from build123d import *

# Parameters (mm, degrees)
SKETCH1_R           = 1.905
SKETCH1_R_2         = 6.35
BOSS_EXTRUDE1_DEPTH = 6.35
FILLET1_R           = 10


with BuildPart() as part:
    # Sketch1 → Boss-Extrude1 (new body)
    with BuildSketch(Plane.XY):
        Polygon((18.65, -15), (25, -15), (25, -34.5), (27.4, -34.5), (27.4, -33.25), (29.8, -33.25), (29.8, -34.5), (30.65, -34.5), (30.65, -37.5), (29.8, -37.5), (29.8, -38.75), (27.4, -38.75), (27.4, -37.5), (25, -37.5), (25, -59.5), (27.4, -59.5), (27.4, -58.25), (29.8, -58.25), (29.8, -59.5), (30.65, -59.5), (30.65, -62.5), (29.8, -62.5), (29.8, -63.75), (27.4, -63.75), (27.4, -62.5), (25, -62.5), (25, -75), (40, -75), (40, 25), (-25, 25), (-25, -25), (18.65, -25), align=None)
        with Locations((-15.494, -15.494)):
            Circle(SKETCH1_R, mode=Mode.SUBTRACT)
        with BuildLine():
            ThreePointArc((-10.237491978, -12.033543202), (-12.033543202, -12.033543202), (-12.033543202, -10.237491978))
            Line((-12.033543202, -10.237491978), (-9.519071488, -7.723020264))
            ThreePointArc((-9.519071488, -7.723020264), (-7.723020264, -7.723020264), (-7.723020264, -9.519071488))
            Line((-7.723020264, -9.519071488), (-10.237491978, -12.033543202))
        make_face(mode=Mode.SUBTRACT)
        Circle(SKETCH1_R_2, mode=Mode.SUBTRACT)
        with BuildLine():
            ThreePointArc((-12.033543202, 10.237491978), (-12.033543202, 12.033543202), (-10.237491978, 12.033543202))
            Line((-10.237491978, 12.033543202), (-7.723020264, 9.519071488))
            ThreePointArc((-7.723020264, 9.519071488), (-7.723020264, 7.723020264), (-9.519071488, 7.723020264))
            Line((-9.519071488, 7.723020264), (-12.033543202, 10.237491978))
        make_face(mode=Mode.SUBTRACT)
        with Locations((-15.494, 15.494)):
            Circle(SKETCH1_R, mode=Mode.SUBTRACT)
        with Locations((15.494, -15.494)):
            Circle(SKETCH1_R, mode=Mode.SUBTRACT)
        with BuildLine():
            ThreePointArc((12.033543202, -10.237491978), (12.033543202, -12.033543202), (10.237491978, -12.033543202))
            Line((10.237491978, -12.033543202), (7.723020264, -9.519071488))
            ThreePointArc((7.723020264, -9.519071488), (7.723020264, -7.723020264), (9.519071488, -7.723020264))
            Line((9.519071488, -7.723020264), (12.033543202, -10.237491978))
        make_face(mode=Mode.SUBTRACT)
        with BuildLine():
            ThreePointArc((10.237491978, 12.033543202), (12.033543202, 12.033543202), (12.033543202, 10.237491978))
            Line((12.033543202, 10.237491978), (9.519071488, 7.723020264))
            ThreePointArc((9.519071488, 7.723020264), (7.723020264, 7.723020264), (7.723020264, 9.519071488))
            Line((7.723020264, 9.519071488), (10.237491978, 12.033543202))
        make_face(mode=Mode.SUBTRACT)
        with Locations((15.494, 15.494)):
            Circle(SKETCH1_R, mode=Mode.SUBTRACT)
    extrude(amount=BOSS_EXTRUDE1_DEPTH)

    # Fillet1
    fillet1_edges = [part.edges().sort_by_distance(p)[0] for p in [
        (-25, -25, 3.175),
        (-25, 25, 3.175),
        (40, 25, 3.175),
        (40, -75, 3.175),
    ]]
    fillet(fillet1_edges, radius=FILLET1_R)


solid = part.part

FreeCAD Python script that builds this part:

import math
import FreeCAD as App
import Part
import Sketcher

V = App.Vector
Q = App.Units.Quantity


def edges_at(feature, points):
    """Names of the edges that pass closest to the given points."""
    edges = feature.Shape.Edges
    near = lambda p: min(range(len(edges)), key=lambda i: edges[i].distToShape(Part.Vertex(*p))[0])
    return sorted({f"Edge{near(p) + 1}" for p in points})

doc = App.newDocument("Part")
body = doc.addObject("PartDesign::Body", "Body")

# Sketch on XY plane
sketch1 = body.newObject("Sketcher::SketchObject", "Sketch")
sketch1.AttachmentSupport = (doc.getObject("XY_Plane"), [""])
sketch1.MapMode = "FlatFace"
sketch1.addGeometry([
    Part.LineSegment(V(18.65, -15, 0), V(25, -15, 0)),  # 0
    Part.LineSegment(V(25, -15, 0), V(25, -34.5, 0)),  # 1
    Part.LineSegment(V(25, -34.5, 0), V(27.4, -34.5, 0)),  # 2
    Part.LineSegment(V(27.4, -34.5, 0), V(27.4, -33.25, 0)),  # 3
    Part.LineSegment(V(27.4, -33.25, 0), V(29.8, -33.25, 0)),  # 4
    Part.LineSegment(V(29.8, -33.25, 0), V(29.8, -34.5, 0)),  # 5
    Part.LineSegment(V(29.8, -34.5, 0), V(30.65, -34.5, 0)),  # 6
    Part.LineSegment(V(30.65, -34.5, 0), V(30.65, -37.5, 0)),  # 7
    Part.LineSegment(V(30.65, -37.5, 0), V(29.8, -37.5, 0)),  # 8
    Part.LineSegment(V(29.8, -37.5, 0), V(29.8, -38.75, 0)),  # 9
    Part.LineSegment(V(29.8, -38.75, 0), V(27.4, -38.75, 0)),  # 10
    Part.LineSegment(V(27.4, -38.75, 0), V(27.4, -37.5, 0)),  # 11
    Part.LineSegment(V(27.4, -37.5, 0), V(25, -37.5, 0)),  # 12
    Part.LineSegment(V(25, -37.5, 0), V(25, -59.5, 0)),  # 13
    Part.LineSegment(V(25, -59.5, 0), V(27.4, -59.5, 0)),  # 14
    Part.LineSegment(V(27.4, -59.5, 0), V(27.4, -58.25, 0)),  # 15
    Part.LineSegment(V(27.4, -58.25, 0), V(29.8, -58.25, 0)),  # 16
    Part.LineSegment(V(29.8, -58.25, 0), V(29.8, -59.5, 0)),  # 17
    Part.LineSegment(V(29.8, -59.5, 0), V(30.65, -59.5, 0)),  # 18
    Part.LineSegment(V(30.65, -59.5, 0), V(30.65, -62.5, 0)),  # 19
    Part.LineSegment(V(30.65, -62.5, 0), V(29.8, -62.5, 0)),  # 20
    Part.LineSegment(V(29.8, -62.5, 0), V(29.8, -63.75, 0)),  # 21
    Part.LineSegment(V(29.8, -63.75, 0), V(27.4, -63.75, 0)),  # 22
    Part.LineSegment(V(27.4, -63.75, 0), V(27.4, -62.5, 0)),  # 23
    Part.LineSegment(V(27.4, -62.5, 0), V(25, -62.5, 0)),  # 24
    Part.LineSegment(V(25, -62.5, 0), V(25, -75, 0)),  # 25
    Part.LineSegment(V(25, -75, 0), V(40, -75, 0)),  # 26
    Part.LineSegment(V(40, -75, 0), V(40, 25, 0)),  # 27
    Part.LineSegment(V(40, 25, 0), V(-25, 25, 0)),  # 28
    Part.LineSegment(V(-25, 25, 0), V(-25, -25, 0)),  # 29
    Part.LineSegment(V(-25, -25, 0), V(18.65, -25, 0)),  # 30
    Part.LineSegment(V(18.65, -25, 0), V(18.65, -15, 0)),  # 31
    Part.Circle(V(-15.494, -15.494, 0), V(0, 0, 1), 1.905),  # 32
    Part.LineSegment(V(-7.72302, -9.519071, 0), V(-10.237492, -12.033543, 0)),  # 33
    Part.ArcOfCircle(Part.Circle(V(-11.135518, -11.135518, 0), V(0, 0, 1), 1.27), math.radians(135), math.radians(315)),  # 34
    Part.LineSegment(V(-12.033543, -10.237492, 0), V(-9.519071, -7.72302, 0)),  # 35
    Part.ArcOfCircle(Part.Circle(V(-8.621046, -8.621046, 0), V(0, 0, 1), 1.27), math.radians(-45), math.radians(135)),  # 36
    Part.Circle(V(15.494, -15.494, 0), V(0, 0, 1), 1.905),  # 37
    Part.LineSegment(V(9.519071, -7.72302, 0), V(12.033543, -10.237492, 0)),  # 38
    Part.ArcOfCircle(Part.Circle(V(11.135518, -11.135518, 0), V(0, 0, 1), 1.27), math.radians(-135), math.radians(45)),  # 39
    Part.LineSegment(V(10.237492, -12.033543, 0), V(7.72302, -9.519071, 0)),  # 40
    Part.ArcOfCircle(Part.Circle(V(8.621046, -8.621046, 0), V(0, 0, 1), 1.27), math.radians(45), math.radians(225)),  # 41
    Part.LineSegment(V(-9.519071, 7.72302, 0), V(-12.033543, 10.237492, 0)),  # 42
    Part.ArcOfCircle(Part.Circle(V(-11.135518, 11.135518, 0), V(0, 0, 1), 1.27), math.radians(45), math.radians(225)),  # 43
    Part.LineSegment(V(-10.237492, 12.033543, 0), V(-7.72302, 9.519071, 0)),  # 44
    Part.ArcOfCircle(Part.Circle(V(-8.621046, 8.621046, 0), V(0, 0, 1), 1.27), math.radians(-135), math.radians(45)),  # 45
    Part.Circle(V(-15.494, 15.494, 0), V(0, 0, 1), 1.905),  # 46
    Part.Circle(V(0, 0, 0), V(0, 0, 1), 6.35),  # 47
    Part.LineSegment(V(7.72302, 9.519071, 0), V(10.237492, 12.033543, 0)),  # 48
    Part.ArcOfCircle(Part.Circle(V(11.135518, 11.135518, 0), V(0, 0, 1), 1.27), math.radians(-45), math.radians(135)),  # 49
    Part.LineSegment(V(12.033543, 10.237492, 0), V(9.519071, 7.72302, 0)),  # 50
    Part.ArcOfCircle(Part.Circle(V(8.621046, 8.621046, 0), V(0, 0, 1), 1.27), math.radians(135), math.radians(315)),  # 51
    Part.Circle(V(15.494, 15.494, 0), V(0, 0, 1), 1.905),  # 52
], False)
sketch1.addConstraint([
    Sketcher.Constraint("Coincident", 0, 2, 1, 1),
    Sketcher.Constraint("Coincident", 1, 2, 2, 1),
    Sketcher.Constraint("Coincident", 2, 2, 3, 1),
    Sketcher.Constraint("Coincident", 3, 2, 4, 1),
    Sketcher.Constraint("Coincident", 4, 2, 5, 1),
    Sketcher.Constraint("Coincident", 5, 2, 6, 1),
    Sketcher.Constraint("Coincident", 6, 2, 7, 1),
    Sketcher.Constraint("Coincident", 7, 2, 8, 1),
    Sketcher.Constraint("Coincident", 8, 2, 9, 1),
    Sketcher.Constraint("Coincident", 9, 2, 10, 1),
    Sketcher.Constraint("Coincident", 10, 2, 11, 1),
    Sketcher.Constraint("Coincident", 11, 2, 12, 1),
    Sketcher.Constraint("Coincident", 12, 2, 13, 1),
    Sketcher.Constraint("Coincident", 13, 2, 14, 1),
    Sketcher.Constraint("Coincident", 14, 2, 15, 1),
    Sketcher.Constraint("Coincident", 15, 2, 16, 1),
    Sketcher.Constraint("Coincident", 16, 2, 17, 1),
    Sketcher.Constraint("Coincident", 17, 2, 18, 1),
    Sketcher.Constraint("Coincident", 18, 2, 19, 1),
    Sketcher.Constraint("Coincident", 19, 2, 20, 1),
    Sketcher.Constraint("Coincident", 20, 2, 21, 1),
    Sketcher.Constraint("Coincident", 21, 2, 22, 1),
    Sketcher.Constraint("Coincident", 22, 2, 23, 1),
    Sketcher.Constraint("Coincident", 23, 2, 24, 1),
    Sketcher.Constraint("Coincident", 24, 2, 25, 1),
    Sketcher.Constraint("Coincident", 25, 2, 26, 1),
    Sketcher.Constraint("Coincident", 26, 2, 27, 1),
    Sketcher.Constraint("Coincident", 27, 2, 28, 1),
    Sketcher.Constraint("Coincident", 28, 2, 29, 1),
    Sketcher.Constraint("Coincident", 29, 2, 30, 1),
    Sketcher.Constraint("Coincident", 30, 2, 31, 1),
    Sketcher.Constraint("Coincident", 31, 2, 0, 1),
    Sketcher.Constraint("Tangent", 33, 2, 34, 2),
    Sketcher.Constraint("Tangent", 34, 1, 35, 1),
    Sketcher.Constraint("Tangent", 35, 2, 36, 2),
    Sketcher.Constraint("Tangent", 36, 1, 33, 1),
    Sketcher.Constraint("Tangent", 38, 2, 39, 2),
    Sketcher.Constraint("Tangent", 39, 1, 40, 1),
    Sketcher.Constraint("Tangent", 40, 2, 41, 2),
    Sketcher.Constraint("Tangent", 41, 1, 38, 1),
    Sketcher.Constraint("Tangent", 42, 2, 43, 2),
    Sketcher.Constraint("Tangent", 43, 1, 44, 1),
    Sketcher.Constraint("Tangent", 44, 2, 45, 2),
    Sketcher.Constraint("Tangent", 45, 1, 42, 1),
    Sketcher.Constraint("Tangent", 48, 2, 49, 2),
    Sketcher.Constraint("Tangent", 49, 1, 50, 1),
    Sketcher.Constraint("Tangent", 50, 2, 51, 2),
    Sketcher.Constraint("Tangent", 51, 1, 48, 1),
    Sketcher.Constraint("Horizontal", 0),
    Sketcher.Constraint("Vertical", 1),
    Sketcher.Constraint("Horizontal", 2),
    Sketcher.Constraint("Vertical", 3),
    Sketcher.Constraint("Horizontal", 4),
    Sketcher.Constraint("Vertical", 5),
    Sketcher.Constraint("Horizontal", 6),
    Sketcher.Constraint("Vertical", 7),
    Sketcher.Constraint("Horizontal", 8),
    Sketcher.Constraint("Vertical", 9),
    Sketcher.Constraint("Horizontal", 10),
    Sketcher.Constraint("Vertical", 11),
    Sketcher.Constraint("Horizontal", 12),
    Sketcher.Constraint("Vertical", 13),
    Sketcher.Constraint("Horizontal", 14),
    Sketcher.Constraint("Vertical", 15),
    Sketcher.Constraint("Horizontal", 16),
    Sketcher.Constraint("Vertical", 17),
    Sketcher.Constraint("Horizontal", 18),
    Sketcher.Constraint("Vertical", 19),
    Sketcher.Constraint("Horizontal", 20),
    Sketcher.Constraint("Vertical", 21),
    Sketcher.Constraint("Horizontal", 22),
    Sketcher.Constraint("Vertical", 23),
    Sketcher.Constraint("Horizontal", 24),
    Sketcher.Constraint("Vertical", 25),
    Sketcher.Constraint("Horizontal", 26),
    Sketcher.Constraint("Vertical", 27),
    Sketcher.Constraint("Horizontal", 28),
    Sketcher.Constraint("Vertical", 29),
    Sketcher.Constraint("Horizontal", 30),
    Sketcher.Constraint("Vertical", 31),
    Sketcher.Constraint("Coincident", 47, 3, -1, 1),
    Sketcher.Constraint("Equal", 34, 36),
    Sketcher.Constraint("Equal", 32, 37),
    Sketcher.Constraint("Equal", 36, 39),
    Sketcher.Constraint("Equal", 39, 41),
    Sketcher.Constraint("Equal", 41, 43),
    Sketcher.Constraint("Equal", 43, 45),
    Sketcher.Constraint("Equal", 37, 46),
    Sketcher.Constraint("Equal", 45, 49),
    Sketcher.Constraint("Equal", 49, 51),
    Sketcher.Constraint("Equal", 46, 52),
    Sketcher.Constraint("Symmetric", 39, 3, 43, 3, -1, 1),
    Sketcher.Constraint("Symmetric", 41, 3, 45, 3, -1, 1),
    Sketcher.Constraint("Symmetric", 37, 3, 46, 3, -1, 1),
    Sketcher.Constraint("Symmetric", 34, 3, 49, 3, -1, 1),
    Sketcher.Constraint("Symmetric", 36, 3, 51, 3, -1, 1),
    Sketcher.Constraint("Symmetric", 32, 3, 52, 3, -1, 1),
    Sketcher.Constraint("Symmetric", 32, 3, 37, 3, -2),
    Sketcher.Constraint("Symmetric", 34, 3, 39, 3, -2),
    Sketcher.Constraint("Symmetric", 36, 3, 41, 3, -2),
    Sketcher.Constraint("Perpendicular", 35, 38),
    Sketcher.Constraint("Horizontal", 2, 2, 5, 2),
    Sketcher.Constraint("Horizontal", 8, 2, 11, 2),
    Sketcher.Constraint("Horizontal", 14, 2, 17, 2),
    Sketcher.Constraint("Horizontal", 20, 2, 23, 2),
    Sketcher.Constraint("Vertical", 5, 2, 8, 2),
    Sketcher.Constraint("Vertical", 3, 2, 10, 2),
    Sketcher.Constraint("Vertical", 1, 2, 12, 2),
    Sketcher.Constraint("Vertical", 11, 2, 14, 2),
    Sketcher.Constraint("Vertical", 9, 2, 16, 2),
    Sketcher.Constraint("Vertical", 7, 2, 18, 2),
    Sketcher.Constraint("Vertical", 17, 2, 20, 2),
    Sketcher.Constraint("Vertical", 15, 2, 22, 2),
    Sketcher.Constraint("Vertical", 13, 2, 24, 2),
    Sketcher.Constraint("Equal", 2, 4),
    Sketcher.Constraint("Equal", 5, 9),
    Sketcher.Constraint("Equal", 11, 15),
    Sketcher.Constraint("Equal", 7, 19),
    Sketcher.Constraint("Equal", 17, 21),
    Sketcher.Constraint("Diameter", 47, Q("12.7 mm")),
    Sketcher.Constraint("Diameter", 32, Q("3.81 mm")),
    Sketcher.Constraint("DistanceX", 26, 1, 26, 2, Q("15 mm")),
    Sketcher.Constraint("DistanceX", 28, 2, 28, 1, Q("65 mm")),
    Sketcher.Constraint("DistanceY", 7, 2, 7, 1, Q("3 mm")),
    Sketcher.Constraint("DistanceY", 13, 2, 13, 1, Q("22 mm")),
    Sketcher.Constraint("DistanceY", 27, 1, 27, 2, Q("100 mm")),
    Sketcher.Constraint("DistanceY", 29, 2, 29, 1, Q("50 mm")),
    Sketcher.Constraint("DistanceY", 31, 1, 31, 2, Q("10 mm")),
    Sketcher.Constraint("Radius", 34, Q("1.27 mm")),
    Sketcher.Constraint("DistanceX", 2, 1, 2, 2, Q("2.4 mm")),
    Sketcher.Constraint("DistanceY", 1, 2, 1, 1, Q("19.5 mm")),
    Sketcher.Constraint("DistanceX", -1, 1, 0, 2, Q("25 mm")),
    Sketcher.Constraint("DistanceY", 0, 2, -1, 1, Q("15 mm")),
    Sketcher.Constraint("DistanceX", 0, 1, 0, 2, Q("6.35 mm")),
    Sketcher.Constraint("DistanceX", 6, 1, 6, 2, Q("0.85 mm")),
    Sketcher.Constraint("DistanceY", 3, 1, 3, 2, Q("1.25 mm")),
    Sketcher.Constraint("Distance", 33, Q("3.556 mm")),
    Sketcher.Constraint("DistanceX", 32, 3, -1, 1, Q("15.494 mm")),
    Sketcher.Constraint("DistanceY", 32, 3, -1, 1, Q("15.494 mm")),
    Sketcher.Constraint("DistanceX", 33, 2, -1, 1, Q("10.237492 mm")),
    Sketcher.Constraint("DistanceY", 34, 1, -1, 1, Q("10.237492 mm")),
])
pad1 = body.newObject("PartDesign::Pad", "Pad")
pad1.Profile = sketch1
pad1.Length = 6.35
doc.recompute()

fillet = body.newObject("PartDesign::Fillet", "Fillet")
fillet.Base = (pad1, edges_at(pad1, [
    (-25, -25, 3.175),
    (-25, 25, 3.175),
    (40, 25, 3.175),
    (40, -75, 3.175),
]))
fillet.Radius = 10

doc.recompute()
